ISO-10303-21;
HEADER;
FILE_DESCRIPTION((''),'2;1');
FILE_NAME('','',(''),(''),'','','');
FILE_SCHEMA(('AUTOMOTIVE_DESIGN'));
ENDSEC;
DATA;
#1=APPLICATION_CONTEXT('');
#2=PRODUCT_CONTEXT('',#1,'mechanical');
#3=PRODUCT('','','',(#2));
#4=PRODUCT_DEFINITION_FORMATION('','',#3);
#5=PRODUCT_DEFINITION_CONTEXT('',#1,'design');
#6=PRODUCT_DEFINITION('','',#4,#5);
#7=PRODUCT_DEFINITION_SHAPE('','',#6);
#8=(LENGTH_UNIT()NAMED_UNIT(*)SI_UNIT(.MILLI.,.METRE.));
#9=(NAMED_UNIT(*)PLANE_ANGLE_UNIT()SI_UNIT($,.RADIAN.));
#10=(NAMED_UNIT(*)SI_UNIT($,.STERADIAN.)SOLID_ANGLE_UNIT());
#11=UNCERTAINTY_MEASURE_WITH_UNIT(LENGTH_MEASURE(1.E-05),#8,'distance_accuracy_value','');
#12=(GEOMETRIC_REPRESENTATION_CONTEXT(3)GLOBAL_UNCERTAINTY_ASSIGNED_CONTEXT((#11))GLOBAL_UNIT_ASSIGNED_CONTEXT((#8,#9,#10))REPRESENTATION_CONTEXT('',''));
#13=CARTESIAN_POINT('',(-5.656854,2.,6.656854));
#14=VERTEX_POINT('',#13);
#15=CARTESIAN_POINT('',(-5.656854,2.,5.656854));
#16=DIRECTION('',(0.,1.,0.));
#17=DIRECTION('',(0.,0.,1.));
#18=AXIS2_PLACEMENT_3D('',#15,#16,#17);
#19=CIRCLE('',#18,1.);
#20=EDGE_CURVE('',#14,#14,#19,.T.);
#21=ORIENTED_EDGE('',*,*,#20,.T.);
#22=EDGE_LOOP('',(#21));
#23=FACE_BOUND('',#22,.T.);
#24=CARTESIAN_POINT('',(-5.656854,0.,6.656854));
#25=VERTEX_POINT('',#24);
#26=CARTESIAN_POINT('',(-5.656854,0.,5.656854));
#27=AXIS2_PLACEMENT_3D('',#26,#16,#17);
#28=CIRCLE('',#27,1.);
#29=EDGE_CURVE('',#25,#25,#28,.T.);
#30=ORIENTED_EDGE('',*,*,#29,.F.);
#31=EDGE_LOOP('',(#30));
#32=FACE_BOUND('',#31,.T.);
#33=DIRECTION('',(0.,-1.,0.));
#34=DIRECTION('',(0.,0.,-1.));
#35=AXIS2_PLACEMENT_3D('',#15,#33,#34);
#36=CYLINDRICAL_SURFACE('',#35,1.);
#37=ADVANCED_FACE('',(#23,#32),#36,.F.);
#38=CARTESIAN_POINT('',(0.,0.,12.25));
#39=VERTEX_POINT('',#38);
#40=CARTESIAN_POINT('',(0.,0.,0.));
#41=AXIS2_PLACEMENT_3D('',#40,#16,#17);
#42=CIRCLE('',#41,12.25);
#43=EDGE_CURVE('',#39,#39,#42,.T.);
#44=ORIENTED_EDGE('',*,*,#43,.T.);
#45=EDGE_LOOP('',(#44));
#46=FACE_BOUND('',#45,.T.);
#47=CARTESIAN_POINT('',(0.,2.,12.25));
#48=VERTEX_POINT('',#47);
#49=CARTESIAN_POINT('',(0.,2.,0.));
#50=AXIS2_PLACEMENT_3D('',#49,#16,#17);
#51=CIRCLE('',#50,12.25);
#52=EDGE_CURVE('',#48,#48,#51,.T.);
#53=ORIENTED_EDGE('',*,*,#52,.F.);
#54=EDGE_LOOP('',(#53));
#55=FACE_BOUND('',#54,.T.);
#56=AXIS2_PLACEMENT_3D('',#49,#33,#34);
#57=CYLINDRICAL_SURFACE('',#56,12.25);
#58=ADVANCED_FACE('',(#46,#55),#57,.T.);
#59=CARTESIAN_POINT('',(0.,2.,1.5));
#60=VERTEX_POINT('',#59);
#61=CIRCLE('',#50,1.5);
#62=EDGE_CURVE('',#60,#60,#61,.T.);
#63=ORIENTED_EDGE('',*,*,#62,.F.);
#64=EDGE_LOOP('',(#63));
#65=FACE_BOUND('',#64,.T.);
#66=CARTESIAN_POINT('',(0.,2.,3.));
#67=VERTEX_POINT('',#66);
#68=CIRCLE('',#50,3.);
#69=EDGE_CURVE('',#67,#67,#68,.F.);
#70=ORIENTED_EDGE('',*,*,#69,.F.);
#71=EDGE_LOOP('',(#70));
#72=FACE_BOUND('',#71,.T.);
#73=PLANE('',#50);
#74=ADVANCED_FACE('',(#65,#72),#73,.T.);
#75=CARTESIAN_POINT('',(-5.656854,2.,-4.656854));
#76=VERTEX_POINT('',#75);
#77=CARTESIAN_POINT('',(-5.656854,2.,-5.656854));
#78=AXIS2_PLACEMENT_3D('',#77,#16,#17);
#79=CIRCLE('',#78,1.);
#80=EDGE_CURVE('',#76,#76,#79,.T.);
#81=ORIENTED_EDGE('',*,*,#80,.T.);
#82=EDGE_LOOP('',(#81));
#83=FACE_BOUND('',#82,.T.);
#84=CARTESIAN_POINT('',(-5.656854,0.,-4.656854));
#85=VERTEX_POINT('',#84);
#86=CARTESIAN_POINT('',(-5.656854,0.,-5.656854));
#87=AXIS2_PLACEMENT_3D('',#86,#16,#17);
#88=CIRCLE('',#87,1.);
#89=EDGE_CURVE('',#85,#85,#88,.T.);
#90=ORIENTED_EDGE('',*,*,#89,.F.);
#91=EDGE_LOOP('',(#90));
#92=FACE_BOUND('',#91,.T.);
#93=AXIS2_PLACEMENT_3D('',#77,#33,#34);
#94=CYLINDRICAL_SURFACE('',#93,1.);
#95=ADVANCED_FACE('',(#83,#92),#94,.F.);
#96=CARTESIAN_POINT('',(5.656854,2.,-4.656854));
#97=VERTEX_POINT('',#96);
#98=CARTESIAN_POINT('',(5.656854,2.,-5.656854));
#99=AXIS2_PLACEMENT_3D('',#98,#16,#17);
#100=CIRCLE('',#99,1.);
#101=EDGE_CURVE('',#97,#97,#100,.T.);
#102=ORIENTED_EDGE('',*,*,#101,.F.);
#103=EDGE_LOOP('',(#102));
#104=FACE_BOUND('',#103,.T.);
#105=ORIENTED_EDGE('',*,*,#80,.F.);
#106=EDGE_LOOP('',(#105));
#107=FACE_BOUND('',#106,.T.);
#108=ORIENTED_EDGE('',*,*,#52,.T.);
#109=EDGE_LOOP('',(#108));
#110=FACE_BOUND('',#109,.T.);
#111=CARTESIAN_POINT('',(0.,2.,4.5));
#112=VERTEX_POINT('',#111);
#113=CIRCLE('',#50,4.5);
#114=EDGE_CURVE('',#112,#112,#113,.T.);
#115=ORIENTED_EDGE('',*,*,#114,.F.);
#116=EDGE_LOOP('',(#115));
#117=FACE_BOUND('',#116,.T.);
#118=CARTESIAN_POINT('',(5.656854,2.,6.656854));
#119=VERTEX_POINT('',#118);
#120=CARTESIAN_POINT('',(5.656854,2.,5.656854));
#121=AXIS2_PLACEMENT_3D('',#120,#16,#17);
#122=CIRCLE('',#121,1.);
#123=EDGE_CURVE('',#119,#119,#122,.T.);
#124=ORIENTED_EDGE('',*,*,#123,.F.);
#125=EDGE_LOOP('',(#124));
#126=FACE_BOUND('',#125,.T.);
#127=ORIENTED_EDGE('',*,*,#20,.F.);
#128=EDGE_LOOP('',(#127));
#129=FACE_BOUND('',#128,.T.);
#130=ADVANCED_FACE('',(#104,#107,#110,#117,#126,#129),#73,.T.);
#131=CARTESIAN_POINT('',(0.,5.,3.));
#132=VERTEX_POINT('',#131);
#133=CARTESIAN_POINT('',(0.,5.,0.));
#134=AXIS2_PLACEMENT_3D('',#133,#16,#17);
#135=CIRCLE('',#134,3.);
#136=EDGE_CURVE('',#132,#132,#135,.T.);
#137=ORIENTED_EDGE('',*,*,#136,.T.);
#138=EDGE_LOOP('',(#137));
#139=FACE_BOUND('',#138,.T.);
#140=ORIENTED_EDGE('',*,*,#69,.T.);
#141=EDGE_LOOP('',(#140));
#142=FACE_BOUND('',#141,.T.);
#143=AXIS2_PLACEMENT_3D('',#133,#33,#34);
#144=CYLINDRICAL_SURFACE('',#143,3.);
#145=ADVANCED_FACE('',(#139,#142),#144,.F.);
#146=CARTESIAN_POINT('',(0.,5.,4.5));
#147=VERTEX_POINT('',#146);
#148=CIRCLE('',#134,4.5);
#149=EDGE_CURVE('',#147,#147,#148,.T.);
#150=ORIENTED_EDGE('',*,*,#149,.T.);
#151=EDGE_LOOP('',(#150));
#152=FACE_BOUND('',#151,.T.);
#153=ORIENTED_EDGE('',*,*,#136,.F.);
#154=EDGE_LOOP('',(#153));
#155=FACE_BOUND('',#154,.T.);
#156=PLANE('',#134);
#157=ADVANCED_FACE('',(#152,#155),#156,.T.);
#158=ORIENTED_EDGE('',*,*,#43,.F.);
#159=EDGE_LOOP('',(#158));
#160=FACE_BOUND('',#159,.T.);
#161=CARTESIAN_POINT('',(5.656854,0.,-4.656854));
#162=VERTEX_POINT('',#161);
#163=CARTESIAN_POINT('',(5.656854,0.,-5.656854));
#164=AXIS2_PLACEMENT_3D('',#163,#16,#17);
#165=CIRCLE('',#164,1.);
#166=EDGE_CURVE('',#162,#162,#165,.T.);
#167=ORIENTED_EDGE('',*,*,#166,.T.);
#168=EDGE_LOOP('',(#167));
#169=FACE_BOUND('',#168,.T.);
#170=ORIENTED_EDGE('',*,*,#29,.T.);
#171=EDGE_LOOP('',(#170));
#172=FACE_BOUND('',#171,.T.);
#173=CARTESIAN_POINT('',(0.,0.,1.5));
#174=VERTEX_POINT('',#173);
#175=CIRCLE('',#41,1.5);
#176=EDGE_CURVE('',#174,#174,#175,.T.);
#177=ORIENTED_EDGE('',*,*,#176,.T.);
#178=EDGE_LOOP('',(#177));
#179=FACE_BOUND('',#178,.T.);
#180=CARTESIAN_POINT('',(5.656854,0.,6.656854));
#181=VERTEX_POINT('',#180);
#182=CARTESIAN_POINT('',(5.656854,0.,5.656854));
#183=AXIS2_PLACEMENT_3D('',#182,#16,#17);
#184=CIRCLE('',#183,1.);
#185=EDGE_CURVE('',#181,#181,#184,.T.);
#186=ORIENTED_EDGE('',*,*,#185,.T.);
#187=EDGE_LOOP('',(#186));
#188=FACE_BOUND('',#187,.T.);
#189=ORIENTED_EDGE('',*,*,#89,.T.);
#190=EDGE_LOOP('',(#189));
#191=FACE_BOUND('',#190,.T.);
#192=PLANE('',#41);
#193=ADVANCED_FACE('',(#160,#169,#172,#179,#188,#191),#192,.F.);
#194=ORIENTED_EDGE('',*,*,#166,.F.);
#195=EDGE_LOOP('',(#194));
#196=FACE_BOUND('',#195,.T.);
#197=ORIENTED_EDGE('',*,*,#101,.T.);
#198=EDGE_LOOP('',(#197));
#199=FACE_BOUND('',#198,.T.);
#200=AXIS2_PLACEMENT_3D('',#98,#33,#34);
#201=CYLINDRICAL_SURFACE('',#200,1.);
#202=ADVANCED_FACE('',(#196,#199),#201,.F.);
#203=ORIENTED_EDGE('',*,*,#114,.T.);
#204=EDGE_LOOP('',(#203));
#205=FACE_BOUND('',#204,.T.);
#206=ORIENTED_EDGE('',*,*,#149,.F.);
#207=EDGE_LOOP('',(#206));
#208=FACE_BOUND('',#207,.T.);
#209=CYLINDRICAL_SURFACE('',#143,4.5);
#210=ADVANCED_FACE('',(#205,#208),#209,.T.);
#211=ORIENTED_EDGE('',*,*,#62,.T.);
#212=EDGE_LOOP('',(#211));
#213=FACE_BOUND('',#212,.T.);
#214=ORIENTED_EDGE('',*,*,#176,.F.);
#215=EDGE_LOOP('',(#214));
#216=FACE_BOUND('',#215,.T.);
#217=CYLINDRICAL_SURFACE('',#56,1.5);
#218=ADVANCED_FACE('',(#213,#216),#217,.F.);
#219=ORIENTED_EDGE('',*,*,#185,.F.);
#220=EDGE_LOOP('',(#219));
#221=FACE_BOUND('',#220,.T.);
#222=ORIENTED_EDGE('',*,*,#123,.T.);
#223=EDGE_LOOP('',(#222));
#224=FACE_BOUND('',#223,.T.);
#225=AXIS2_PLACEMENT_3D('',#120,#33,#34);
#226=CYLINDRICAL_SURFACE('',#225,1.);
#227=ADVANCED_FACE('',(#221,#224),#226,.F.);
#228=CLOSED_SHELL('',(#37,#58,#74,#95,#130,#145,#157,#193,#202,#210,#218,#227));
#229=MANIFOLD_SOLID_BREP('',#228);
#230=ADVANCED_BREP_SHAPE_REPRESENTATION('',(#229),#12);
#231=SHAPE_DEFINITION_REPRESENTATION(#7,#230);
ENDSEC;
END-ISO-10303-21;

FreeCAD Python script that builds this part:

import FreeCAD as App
import Part
import Sketcher
from FreeCAD import Vector
Q = App.Units.Quantity

doc = App.newDocument("Part")
body = doc.addObject("PartDesign::Body", "Body")

# Sketch on XZ plane
sketch1 = doc.addObject("Sketcher::SketchObject", "Sketch")
body.addObject(sketch1)
sketch1.AttachmentSupport = (doc.XZ_Plane, [""])
sketch1.MapMode = "FlatFace"
sketch1.addGeometry(Part.Circle(Vector(0, 0, 0), Vector(0, 0, 1), 12.25), False)
sketch1.addGeometry(Part.Circle(Vector(-5.656854, 5.656854, 0), Vector(0, 0, 1), 1), False)
sketch1.addGeometry(Part.Circle(Vector(5.656854, 5.656854, 0), Vector(0, 0, 1), 1), False)
sketch1.addGeometry(Part.Circle(Vector(-5.656854, -5.656854, 0), Vector(0, 0, 1), 1), False)
sketch1.addGeometry(Part.Circle(Vector(0, 0, 0), Vector(0, 0, 1), 1.5), False)
sketch1.addGeometry(Part.Circle(Vector(5.656854, -5.656854, 0), Vector(0, 0, 1), 1), False)
sketch1.addConstraint(Sketcher.Constraint("Coincident", 0, 3, -1, 1))
sketch1.addConstraint(Sketcher.Constraint("Coincident", 4, 3, -1, 1))
sketch1.addConstraint(Sketcher.Constraint("Equal", 1, 2))
sketch1.addConstraint(Sketcher.Constraint("Equal", 2, 3))
sketch1.addConstraint(Sketcher.Constraint("Equal", 3, 5))
sketch1.addConstraint(Sketcher.Constraint("Symmetric", 2, 3, 3, 3, -1, 1))
sketch1.addConstraint(Sketcher.Constraint("Symmetric", 1, 3, 5, 3, -1, 1))
sketch1.addConstraint(Sketcher.Constraint("Symmetric", 1, 3, 2, 3, -2))
sketch1.addConstraint(Sketcher.Constraint("Diameter", 1, Q("2 mm")))
sketch1.addConstraint(Sketcher.Constraint("Diameter", 4, Q("3 mm")))
sketch1.addConstraint(Sketcher.Constraint("Diameter", 0, Q("24.5 mm")))
sketch1.addConstraint(Sketcher.Constraint("DistanceX", 1, 3, 2, 3, Q("11.313708 mm")))
sketch1.addConstraint(Sketcher.Constraint("DistanceY", 3, 3, 1, 3, Q("11.313708 mm")))
pad1 = doc.addObject("PartDesign::Pad", "Pad")
body.addObject(pad1)
pad1.Profile = sketch1
pad1.Length = 2
pad1.Reversed = True

# Sketch on XZ plane
sketch2 = doc.addObject("Sketcher::SketchObject", "Sketch001")
body.addObject(sketch2)
sketch2.AttachmentSupport = (doc.XZ_Plane, [""])
sketch2.MapMode = "FlatFace"
sketch2.AttachmentOffset = App.Placement(Vector(0, 0, -2), App.Rotation())
sketch2.addGeometry(Part.Circle(Vector(0, 0, 0), Vector(0, 0, 1), 4.5), False)
sketch2.addGeometry(Part.Circle(Vector(0, 0, 0), Vector(0, 0, 1), 3), False)
sketch2.addConstraint(Sketcher.Constraint("Coincident", 0, 3, -1, 1))
sketch2.addConstraint(Sketcher.Constraint("Coincident", 1, 3, -1, 1))
sketch2.addConstraint(Sketcher.Constraint("Diameter", 0, Q("9 mm")))
sketch2.addConstraint(Sketcher.Constraint("Diameter", 1, Q("6 mm")))
pad2 = doc.addObject("PartDesign::Pad", "Pad001")
body.addObject(pad2)
pad2.Profile = sketch2
pad2.Length = 3
pad2.Reversed = True

doc.recompute()
